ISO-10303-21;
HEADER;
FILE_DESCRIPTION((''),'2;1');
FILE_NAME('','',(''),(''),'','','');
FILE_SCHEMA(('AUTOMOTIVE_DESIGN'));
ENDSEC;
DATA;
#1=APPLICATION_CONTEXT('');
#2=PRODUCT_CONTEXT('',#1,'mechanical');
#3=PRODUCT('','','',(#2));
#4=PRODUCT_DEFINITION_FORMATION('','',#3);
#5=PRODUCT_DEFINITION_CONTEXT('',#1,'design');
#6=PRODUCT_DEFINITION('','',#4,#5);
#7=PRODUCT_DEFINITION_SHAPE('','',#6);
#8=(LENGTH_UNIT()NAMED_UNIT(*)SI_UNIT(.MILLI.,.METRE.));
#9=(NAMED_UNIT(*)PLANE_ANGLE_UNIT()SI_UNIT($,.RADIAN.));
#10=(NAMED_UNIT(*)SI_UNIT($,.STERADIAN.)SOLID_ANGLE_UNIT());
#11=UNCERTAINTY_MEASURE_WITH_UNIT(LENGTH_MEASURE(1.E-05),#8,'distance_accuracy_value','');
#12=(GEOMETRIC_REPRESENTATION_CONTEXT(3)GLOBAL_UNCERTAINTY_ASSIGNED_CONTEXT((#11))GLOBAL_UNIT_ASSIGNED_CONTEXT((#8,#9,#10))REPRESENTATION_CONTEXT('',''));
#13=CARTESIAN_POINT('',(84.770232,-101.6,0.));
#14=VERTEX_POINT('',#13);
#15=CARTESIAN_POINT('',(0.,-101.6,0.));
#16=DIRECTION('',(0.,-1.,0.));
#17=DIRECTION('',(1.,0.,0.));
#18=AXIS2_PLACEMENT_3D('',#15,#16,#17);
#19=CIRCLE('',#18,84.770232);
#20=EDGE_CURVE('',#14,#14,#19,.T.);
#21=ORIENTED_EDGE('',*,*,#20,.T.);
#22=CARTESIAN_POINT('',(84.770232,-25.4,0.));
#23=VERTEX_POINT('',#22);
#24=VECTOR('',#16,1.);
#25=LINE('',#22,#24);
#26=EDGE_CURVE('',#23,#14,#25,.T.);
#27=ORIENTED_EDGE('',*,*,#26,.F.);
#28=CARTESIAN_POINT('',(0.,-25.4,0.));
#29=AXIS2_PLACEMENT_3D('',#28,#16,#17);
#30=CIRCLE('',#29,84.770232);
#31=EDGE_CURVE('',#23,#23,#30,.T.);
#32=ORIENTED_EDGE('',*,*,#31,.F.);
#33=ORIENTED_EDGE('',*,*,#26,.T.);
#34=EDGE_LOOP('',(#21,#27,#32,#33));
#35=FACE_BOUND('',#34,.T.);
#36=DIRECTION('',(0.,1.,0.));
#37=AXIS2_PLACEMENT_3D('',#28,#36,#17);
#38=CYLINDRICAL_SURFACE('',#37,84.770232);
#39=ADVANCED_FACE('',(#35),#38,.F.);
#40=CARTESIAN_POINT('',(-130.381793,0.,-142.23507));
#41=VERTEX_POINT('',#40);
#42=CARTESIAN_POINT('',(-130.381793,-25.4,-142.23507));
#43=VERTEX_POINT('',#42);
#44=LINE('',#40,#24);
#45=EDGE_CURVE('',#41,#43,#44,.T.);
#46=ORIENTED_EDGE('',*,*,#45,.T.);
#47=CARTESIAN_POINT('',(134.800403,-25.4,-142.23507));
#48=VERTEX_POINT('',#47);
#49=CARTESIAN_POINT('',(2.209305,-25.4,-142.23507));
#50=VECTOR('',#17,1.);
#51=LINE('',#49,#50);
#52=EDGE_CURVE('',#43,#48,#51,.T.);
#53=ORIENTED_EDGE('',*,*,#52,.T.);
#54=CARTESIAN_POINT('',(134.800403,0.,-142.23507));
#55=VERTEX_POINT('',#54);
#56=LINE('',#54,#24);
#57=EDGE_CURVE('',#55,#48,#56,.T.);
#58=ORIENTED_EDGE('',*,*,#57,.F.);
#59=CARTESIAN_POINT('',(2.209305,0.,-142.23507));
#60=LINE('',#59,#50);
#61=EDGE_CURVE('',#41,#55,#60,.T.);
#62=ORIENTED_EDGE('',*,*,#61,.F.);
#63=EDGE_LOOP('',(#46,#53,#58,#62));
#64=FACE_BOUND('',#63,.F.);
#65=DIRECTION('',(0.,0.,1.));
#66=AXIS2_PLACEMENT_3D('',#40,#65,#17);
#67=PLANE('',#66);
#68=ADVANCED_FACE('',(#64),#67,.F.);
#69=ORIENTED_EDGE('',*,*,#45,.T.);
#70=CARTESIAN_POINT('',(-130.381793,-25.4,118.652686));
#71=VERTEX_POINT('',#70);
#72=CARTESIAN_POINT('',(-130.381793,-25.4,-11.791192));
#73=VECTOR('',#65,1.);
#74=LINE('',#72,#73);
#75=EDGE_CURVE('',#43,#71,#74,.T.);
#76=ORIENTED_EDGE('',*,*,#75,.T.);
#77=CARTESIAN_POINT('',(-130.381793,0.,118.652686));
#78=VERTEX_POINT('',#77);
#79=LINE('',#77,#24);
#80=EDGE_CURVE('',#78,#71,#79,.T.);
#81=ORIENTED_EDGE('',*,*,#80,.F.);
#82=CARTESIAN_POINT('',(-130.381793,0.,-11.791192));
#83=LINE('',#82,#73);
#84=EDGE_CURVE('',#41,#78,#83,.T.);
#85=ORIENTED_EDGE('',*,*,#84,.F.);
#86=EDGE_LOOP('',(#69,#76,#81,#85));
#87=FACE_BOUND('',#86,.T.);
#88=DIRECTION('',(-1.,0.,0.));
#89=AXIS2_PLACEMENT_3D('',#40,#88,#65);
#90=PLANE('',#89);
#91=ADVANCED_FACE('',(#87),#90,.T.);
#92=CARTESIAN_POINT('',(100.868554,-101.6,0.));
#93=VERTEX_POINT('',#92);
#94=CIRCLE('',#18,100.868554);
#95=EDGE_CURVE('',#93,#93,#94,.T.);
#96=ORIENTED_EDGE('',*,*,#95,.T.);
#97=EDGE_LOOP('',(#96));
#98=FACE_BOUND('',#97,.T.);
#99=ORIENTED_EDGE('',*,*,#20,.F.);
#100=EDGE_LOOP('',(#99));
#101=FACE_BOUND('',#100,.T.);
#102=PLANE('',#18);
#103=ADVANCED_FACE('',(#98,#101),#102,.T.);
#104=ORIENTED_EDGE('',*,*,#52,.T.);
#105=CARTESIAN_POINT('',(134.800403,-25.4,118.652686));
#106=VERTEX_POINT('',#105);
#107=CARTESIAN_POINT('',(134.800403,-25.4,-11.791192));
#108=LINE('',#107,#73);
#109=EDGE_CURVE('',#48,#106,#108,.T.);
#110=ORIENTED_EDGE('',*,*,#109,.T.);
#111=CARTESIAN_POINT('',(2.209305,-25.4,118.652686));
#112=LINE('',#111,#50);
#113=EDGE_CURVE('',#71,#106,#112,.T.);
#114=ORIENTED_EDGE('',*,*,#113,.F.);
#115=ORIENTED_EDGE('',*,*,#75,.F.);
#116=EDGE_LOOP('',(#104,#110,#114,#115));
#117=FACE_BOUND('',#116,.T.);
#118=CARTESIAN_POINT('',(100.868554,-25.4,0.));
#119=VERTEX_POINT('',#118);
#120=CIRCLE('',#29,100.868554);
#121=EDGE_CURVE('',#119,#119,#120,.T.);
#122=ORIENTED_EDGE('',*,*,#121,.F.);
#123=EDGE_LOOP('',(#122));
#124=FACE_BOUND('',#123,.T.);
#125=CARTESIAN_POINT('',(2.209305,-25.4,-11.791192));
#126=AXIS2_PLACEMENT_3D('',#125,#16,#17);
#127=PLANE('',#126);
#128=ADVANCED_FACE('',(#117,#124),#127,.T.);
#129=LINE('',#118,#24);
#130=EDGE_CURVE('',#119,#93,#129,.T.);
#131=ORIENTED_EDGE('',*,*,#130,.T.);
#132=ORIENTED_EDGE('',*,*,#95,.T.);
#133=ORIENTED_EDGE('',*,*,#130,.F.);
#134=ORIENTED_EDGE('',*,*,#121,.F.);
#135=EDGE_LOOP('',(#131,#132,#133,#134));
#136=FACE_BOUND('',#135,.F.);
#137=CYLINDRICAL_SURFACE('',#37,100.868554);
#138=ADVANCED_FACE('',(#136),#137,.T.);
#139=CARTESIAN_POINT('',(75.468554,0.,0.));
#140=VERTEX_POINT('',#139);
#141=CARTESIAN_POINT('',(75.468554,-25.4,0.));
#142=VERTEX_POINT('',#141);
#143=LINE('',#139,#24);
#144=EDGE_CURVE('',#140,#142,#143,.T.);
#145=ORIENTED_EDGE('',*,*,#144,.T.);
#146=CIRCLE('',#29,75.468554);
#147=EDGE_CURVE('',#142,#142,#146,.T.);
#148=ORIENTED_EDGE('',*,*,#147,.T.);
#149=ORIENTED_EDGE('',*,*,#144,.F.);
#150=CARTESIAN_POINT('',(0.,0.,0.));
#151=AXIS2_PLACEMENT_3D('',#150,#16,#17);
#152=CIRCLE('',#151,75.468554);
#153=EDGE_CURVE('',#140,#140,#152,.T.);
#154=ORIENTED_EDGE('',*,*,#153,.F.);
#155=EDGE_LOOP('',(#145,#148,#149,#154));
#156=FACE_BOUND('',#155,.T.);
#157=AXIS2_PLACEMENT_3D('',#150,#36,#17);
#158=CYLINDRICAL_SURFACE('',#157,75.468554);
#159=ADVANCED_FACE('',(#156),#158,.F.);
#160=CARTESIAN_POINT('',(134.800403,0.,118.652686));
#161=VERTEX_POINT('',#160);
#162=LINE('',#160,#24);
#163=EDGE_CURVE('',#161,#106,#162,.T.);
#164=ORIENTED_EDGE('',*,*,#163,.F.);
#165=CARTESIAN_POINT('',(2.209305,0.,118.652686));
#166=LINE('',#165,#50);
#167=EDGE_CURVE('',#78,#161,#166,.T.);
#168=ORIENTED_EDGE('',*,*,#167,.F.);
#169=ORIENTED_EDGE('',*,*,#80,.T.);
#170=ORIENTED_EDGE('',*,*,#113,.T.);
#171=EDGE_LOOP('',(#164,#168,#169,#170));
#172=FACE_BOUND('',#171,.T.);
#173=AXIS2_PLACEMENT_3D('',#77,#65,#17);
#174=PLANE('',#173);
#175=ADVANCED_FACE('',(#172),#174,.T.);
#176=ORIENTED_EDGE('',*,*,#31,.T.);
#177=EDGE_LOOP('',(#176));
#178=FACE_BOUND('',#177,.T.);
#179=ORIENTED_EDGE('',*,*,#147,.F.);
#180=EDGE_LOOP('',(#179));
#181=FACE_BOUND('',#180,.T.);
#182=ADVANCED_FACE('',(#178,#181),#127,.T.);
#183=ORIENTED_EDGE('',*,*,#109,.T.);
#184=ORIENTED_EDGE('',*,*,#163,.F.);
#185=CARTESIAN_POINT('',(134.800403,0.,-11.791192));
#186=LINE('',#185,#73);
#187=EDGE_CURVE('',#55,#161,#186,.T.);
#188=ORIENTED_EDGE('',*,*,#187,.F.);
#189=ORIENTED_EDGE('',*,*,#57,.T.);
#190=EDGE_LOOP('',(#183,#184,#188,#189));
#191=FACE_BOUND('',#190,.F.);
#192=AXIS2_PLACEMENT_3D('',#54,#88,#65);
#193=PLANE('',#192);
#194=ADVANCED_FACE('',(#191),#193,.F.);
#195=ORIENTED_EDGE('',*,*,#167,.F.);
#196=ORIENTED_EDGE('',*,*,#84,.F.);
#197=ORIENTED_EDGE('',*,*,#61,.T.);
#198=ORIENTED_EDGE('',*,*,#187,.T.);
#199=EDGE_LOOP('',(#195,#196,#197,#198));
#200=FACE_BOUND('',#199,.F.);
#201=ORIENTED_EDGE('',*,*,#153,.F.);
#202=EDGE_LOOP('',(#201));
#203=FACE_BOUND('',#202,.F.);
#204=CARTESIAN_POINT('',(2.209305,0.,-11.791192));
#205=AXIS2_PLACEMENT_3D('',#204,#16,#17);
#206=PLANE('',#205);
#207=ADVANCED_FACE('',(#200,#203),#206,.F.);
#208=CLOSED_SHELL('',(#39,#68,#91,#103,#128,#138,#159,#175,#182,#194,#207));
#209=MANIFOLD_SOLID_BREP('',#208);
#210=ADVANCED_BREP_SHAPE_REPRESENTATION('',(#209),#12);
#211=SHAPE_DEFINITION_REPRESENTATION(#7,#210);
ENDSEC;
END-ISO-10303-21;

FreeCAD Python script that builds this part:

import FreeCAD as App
import Part
import Sketcher
Q = App.Units.Quantity


def add_polygon(sketch, points):
    """Adds a closed chain of lines whose ends are joined by coincident constraints."""
    first, n = sketch.GeometryCount, len(points)
    for a, b in zip(points, points[1:] + points[:1]):
        sketch.addGeometry(Part.LineSegment(App.Vector(*a, 0), App.Vector(*b, 0)), False)
    for i in range(n):
        sketch.addConstraint(Sketcher.Constraint("Coincident", first + i, 2, first + (i + 1) % n, 1))

doc = App.newDocument("Part")
body = doc.addObject("PartDesign::Body", "Body")

sketch1 = doc.addObject("Sketcher::SketchObject", "Sketch")
body.addObject(sketch1)
sketch1.AttachmentSupport = (doc.XZ_Plane, [""])
sketch1.MapMode = "FlatFace"
add_polygon(sketch1, [(-130, 119), (-130, -142), (135, -142), (135, 119)])
sketch1.addGeometry(Part.Circle(App.Vector(0, 0, 0), App.Vector(0, 0, 1), 75), False)
sketch1.addConstraint(Sketcher.Constraint("Vertical", 0))
sketch1.addConstraint(Sketcher.Constraint("Horizontal", 1))
sketch1.addConstraint(Sketcher.Constraint("Vertical", 2))
sketch1.addConstraint(Sketcher.Constraint("Horizontal", 3))
sketch1.addConstraint(Sketcher.Constraint("Coincident", 4, 3, -1, 1))
sketch1.addConstraint(Sketcher.Constraint("Diameter", 4, 150.937108))
sketch1.addConstraint(Sketcher.Constraint("DistanceX", 1, 1, 1, 2, 265.182197))
sketch1.addConstraint(Sketcher.Constraint("DistanceY", 0, 2, 0, 1, 260.887756))
sketch1.addConstraint(Sketcher.Constraint("DistanceY", 0, 2, -1, 1, 142.23507))
sketch1.addConstraint(Sketcher.Constraint("DistanceX", 0, 2, -1, 1, 130.381793))
pad1 = doc.addObject("PartDesign::Pad", "Pad")
body.addObject(pad1)
pad1.Profile = sketch1
pad1.Length = Q("1 in")

sketch2 = doc.addObject("Sketcher::SketchObject", "Sketch001")
body.addObject(sketch2)
sketch2.AttachmentSupport = (doc.XZ_Plane, [""])
sketch2.MapMode = "FlatFace"
sketch2.AttachmentOffset = App.Placement(App.Vector(0, 0, 1 * 25.4), App.Rotation())
sketch2.addGeometry(Part.Circle(App.Vector(0, 0, 0), App.Vector(0, 0, 1), 101), False)
sketch2.addGeometry(Part.Circle(App.Vector(0, 0, 0), App.Vector(0, 0, 1), 85), False)
sketch2.addConstraint(Sketcher.Constraint("Coincident", 0, 3, -1, 1))
sketch2.addConstraint(Sketcher.Constraint("Coincident", 1, 3, -1, 1))
sketch2.addConstraint(Sketcher.Constraint("Diameter", 0, 201.737108))
sketch2.addConstraint(Sketcher.Constraint("Diameter", 1, 169.540464))
pad2 = doc.addObject("PartDesign::Pad", "Pad001")
body.addObject(pad2)
pad2.Profile = sketch2
pad2.Length = Q("3 in")

doc.recompute()
